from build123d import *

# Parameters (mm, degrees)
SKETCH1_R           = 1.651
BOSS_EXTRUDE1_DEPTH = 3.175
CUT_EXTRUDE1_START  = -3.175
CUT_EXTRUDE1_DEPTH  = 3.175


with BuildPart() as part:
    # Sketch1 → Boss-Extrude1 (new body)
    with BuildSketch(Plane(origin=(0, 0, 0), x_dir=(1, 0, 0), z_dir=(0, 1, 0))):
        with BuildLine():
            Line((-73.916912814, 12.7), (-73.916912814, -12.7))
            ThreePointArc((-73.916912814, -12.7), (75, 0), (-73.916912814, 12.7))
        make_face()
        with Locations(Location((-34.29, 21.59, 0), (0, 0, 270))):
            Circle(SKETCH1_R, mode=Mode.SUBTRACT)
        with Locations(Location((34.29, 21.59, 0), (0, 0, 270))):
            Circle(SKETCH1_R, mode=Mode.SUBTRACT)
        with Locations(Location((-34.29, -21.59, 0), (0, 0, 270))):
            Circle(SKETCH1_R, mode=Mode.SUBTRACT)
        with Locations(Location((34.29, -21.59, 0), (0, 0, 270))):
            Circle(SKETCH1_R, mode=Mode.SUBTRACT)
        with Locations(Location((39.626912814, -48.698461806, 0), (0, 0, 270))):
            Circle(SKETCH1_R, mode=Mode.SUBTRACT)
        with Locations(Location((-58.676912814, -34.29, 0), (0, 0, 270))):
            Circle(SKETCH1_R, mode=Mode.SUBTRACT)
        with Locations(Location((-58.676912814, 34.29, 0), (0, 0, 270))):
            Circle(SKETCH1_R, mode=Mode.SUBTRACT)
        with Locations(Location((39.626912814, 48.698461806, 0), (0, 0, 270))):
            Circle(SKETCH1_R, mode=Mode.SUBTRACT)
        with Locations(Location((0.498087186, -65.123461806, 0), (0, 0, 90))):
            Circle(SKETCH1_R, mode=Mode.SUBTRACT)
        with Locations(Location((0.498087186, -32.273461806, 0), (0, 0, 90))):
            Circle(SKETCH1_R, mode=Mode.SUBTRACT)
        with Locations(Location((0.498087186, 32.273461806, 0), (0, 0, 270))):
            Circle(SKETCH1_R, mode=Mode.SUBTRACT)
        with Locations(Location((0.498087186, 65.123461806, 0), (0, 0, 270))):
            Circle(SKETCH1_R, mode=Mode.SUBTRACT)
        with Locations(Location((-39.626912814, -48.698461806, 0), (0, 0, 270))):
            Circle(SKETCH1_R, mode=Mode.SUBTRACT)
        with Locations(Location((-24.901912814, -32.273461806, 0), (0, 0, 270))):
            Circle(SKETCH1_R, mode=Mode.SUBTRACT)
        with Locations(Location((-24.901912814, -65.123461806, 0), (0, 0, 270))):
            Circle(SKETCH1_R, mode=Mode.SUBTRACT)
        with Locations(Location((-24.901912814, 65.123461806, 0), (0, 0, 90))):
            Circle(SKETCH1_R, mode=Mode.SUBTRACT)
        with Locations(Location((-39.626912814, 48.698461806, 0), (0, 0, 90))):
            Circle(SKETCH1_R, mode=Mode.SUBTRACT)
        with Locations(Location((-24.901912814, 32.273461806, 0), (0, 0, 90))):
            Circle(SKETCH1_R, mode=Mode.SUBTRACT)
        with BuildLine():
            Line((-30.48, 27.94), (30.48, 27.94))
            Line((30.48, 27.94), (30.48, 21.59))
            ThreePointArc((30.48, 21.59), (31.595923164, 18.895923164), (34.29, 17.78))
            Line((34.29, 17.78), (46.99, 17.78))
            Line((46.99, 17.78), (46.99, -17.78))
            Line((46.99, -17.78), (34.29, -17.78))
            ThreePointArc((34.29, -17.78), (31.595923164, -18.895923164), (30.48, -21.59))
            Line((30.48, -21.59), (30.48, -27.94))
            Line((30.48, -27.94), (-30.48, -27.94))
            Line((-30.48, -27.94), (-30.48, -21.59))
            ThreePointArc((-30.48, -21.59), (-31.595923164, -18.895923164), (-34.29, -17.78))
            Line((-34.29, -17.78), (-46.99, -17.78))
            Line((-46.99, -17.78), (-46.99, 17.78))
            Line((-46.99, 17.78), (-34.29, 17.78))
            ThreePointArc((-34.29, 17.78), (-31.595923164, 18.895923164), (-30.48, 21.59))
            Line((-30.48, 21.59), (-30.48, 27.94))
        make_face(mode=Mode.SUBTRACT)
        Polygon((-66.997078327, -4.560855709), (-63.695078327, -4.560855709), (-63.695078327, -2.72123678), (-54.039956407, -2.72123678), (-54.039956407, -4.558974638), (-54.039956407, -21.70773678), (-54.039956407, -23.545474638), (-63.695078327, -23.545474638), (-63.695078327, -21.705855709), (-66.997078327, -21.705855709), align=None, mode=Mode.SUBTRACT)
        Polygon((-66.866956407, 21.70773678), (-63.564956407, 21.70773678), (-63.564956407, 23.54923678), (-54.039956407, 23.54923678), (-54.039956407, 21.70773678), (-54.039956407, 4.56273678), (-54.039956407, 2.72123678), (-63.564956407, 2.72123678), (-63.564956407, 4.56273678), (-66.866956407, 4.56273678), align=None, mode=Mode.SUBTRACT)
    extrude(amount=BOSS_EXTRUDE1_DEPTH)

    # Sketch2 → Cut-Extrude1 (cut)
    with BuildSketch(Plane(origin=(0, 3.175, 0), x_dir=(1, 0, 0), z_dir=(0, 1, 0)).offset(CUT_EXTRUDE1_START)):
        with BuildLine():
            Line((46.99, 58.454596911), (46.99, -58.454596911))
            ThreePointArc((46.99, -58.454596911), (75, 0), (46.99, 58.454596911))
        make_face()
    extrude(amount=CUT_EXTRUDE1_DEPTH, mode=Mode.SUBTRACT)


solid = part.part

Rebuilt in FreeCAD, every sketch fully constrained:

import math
import FreeCAD as App
import Part
import Sketcher

V = App.Vector
Q = App.Units.Quantity


def add_polygon(sketch, points):
    """Adds a closed chain of lines whose ends are joined by coincident constraints."""
    first, n = sketch.GeometryCount, len(points)
    for a, b in zip(points, points[1:] + points[:1]):
        sketch.addGeometry(Part.LineSegment(App.Vector(*a, 0), App.Vector(*b, 0)), False)
    for i in range(n):
        sketch.addConstraint(Sketcher.Constraint("Coincident", first + i, 2, first + (i + 1) % n, 1))

doc = App.newDocument("Part")
body = doc.addObject("PartDesign::Body", "Body")

# Sketch on XZ plane
sketch1 = doc.addObject("Sketcher::SketchObject", "Sketch")
body.addObject(sketch1)
sketch1.AttachmentSupport = (doc.XZ_Plane, [""])
sketch1.MapMode = "FlatFace"
sketch1.addGeometry(Part.LineSegment(V(-73.9, -12.7, 0), V(-73.9, 12.7, 0)), False)  # 0
sketch1.addGeometry(Part.ArcOfCircle(Part.Circle(V(0, 0, 0), V(0, 0, 1), 75), math.radians(-170), math.radians(170)), False)  # 1
sketch1.addGeometry(Part.Circle(V(-58.7, 34.3, 0), V(0, 0, 1), 1.7), False)  # 2
sketch1.addGeometry(Part.Circle(V(-39.6, 48.7, 0), V(0, 0, 1), 1.7), False)  # 3
sketch1.addGeometry(Part.Circle(V(-24.9, 65.1, 0), V(0, 0, 1), 1.7), False)  # 4
add_polygon(sketch1, [(-67, 21.7), (-67, 4.6), (-63.7, 4.6), (-63.7, 2.7), (-54, 2.7), (-54, 23.5), (-63.7, 23.5), (-63.7, 21.7)])  # lines 5-12
sketch1.addGeometry(Part.Circle(V(-24.9, 32.3, 0), V(0, 0, 1), 1.7), False)  # 13
sketch1.addGeometry(Part.Circle(V(-34.3, 21.6, 0), V(0, 0, 1), 1.7), False)  # 14
sketch1.addGeometry(Part.Circle(V(0.5, 65.1, 0), V(0, 0, 1), 1.7), False)  # 15
sketch1.addGeometry(Part.Circle(V(39.6, 48.7, 0), V(0, 0, 1), 1.7), False)  # 16
sketch1.addGeometry(Part.Circle(V(0.5, 32.3, 0), V(0, 0, 1), 1.7), False)  # 17
sketch1.addGeometry(Part.Circle(V(34.3, 21.6, 0), V(0, 0, 1), 1.7), False)  # 18
add_polygon(sketch1, [(-66.9, -4.6), (-66.9, -21.7), (-63.6, -21.7), (-63.6, -23.5), (-54, -23.5), (-54, -2.7), (-63.6, -2.7), (-63.6, -4.6)])  # lines 19-26
sketch1.addGeometry(Part.Circle(V(-34.3, -21.6, 0), V(0, 0, 1), 1.7), False)  # 27
sketch1.addGeometry(Part.Circle(V(-24.9, -32.3, 0), V(0, 0, 1), 1.7), False)  # 28
sketch1.addGeometry(Part.Circle(V(-58.7, -34.3, 0), V(0, 0, 1), 1.7), False)  # 29
sketch1.addGeometry(Part.Circle(V(-39.6, -48.7, 0), V(0, 0, 1), 1.7), False)  # 30
sketch1.addGeometry(Part.Circle(V(-24.9, -65.1, 0), V(0, 0, 1), 1.7), False)  # 31
sketch1.addGeometry(Part.LineSegment(V(-30.5, -21.6, 0), V(-30.5, -27.9, 0)), False)  # 32
sketch1.addGeometry(Part.LineSegment(V(-30.5, -27.9, 0), V(30.5, -27.9, 0)), False)  # 33
sketch1.addGeometry(Part.LineSegment(V(30.5, -27.9, 0), V(30.5, -21.6, 0)), False)  # 34
sketch1.addGeometry(Part.ArcOfCircle(Part.Circle(V(34.3, -21.6, 0), V(0, 0, 1), 3.8), math.radians(90), math.radians(180)), False)  # 35
sketch1.addGeometry(Part.LineSegment(V(34.3, -17.8, 0), V(47, -17.8, 0)), False)  # 36
sketch1.addGeometry(Part.LineSegment(V(47, -17.8, 0), V(47, 17.8, 0)), False)  # 37
sketch1.addGeometry(Part.LineSegment(V(47, 17.8, 0), V(34.3, 17.8, 0)), False)  # 38
sketch1.addGeometry(Part.ArcOfCircle(Part.Circle(V(34.3, 21.6, 0), V(0, 0, 1), 3.8), math.radians(-180), math.radians(-90)), False)  # 39
sketch1.addGeometry(Part.LineSegment(V(30.5, 21.6, 0), V(30.5, 27.9, 0)), False)  # 40
sketch1.addGeometry(Part.LineSegment(V(30.5, 27.9, 0), V(-30.5, 27.9, 0)), False)  # 41
sketch1.addGeometry(Part.LineSegment(V(-30.5, 27.9, 0), V(-30.5, 21.6, 0)), False)  # 42
sketch1.addGeometry(Part.ArcOfCircle(Part.Circle(V(-34.3, 21.6, 0), V(0, 0, 1), 3.8), math.radians(-90), math.radians(0)), False)  # 43
sketch1.addGeometry(Part.LineSegment(V(-34.3, 17.8, 0), V(-47, 17.8, 0)), False)  # 44
sketch1.addGeometry(Part.LineSegment(V(-47, 17.8, 0), V(-47, -17.8, 0)), False)  # 45
sketch1.addGeometry(Part.LineSegment(V(-47, -17.8, 0), V(-34.3, -17.8, 0)), False)  # 46
sketch1.addGeometry(Part.ArcOfCircle(Part.Circle(V(-34.3, -21.6, 0), V(0, 0, 1), 3.8), math.radians(0), math.radians(90)), False)  # 47
sketch1.addGeometry(Part.Circle(V(0.5, -32.3, 0), V(0, 0, 1), 1.7), False)  # 48
sketch1.addGeometry(Part.Circle(V(34.3, -21.6, 0), V(0, 0, 1), 1.7), False)  # 49
sketch1.addGeometry(Part.Circle(V(0.5, -65.1, 0), V(0, 0, 1), 1.7), False)  # 50
sketch1.addGeometry(Part.Circle(V(39.6, -48.7, 0), V(0, 0, 1), 1.7), False)  # 51
sketch1.addConstraint(Sketcher.Constraint("Coincident", 0, 1, 1, 1))
sketch1.addConstraint(Sketcher.Constraint("Coincident", 1, 2, 0, 2))
sketch1.addConstraint(Sketcher.Constraint("Coincident", 32, 2, 33, 1))
sketch1.addConstraint(Sketcher.Constraint("Coincident", 33, 2, 34, 1))
sketch1.addConstraint(Sketcher.Constraint("Tangent", 34, 2, 35, 2))
sketch1.addConstraint(Sketcher.Constraint("Tangent", 35, 1, 36, 1))
sketch1.addConstraint(Sketcher.Constraint("Coincident", 36, 2, 37, 1))
sketch1.addConstraint(Sketcher.Constraint("Coincident", 37, 2, 38, 1))
sketch1.addConstraint(Sketcher.Constraint("Tangent", 38, 2, 39, 2))
sketch1.addConstraint(Sketcher.Constraint("Tangent", 39, 1, 40, 1))
sketch1.addConstraint(Sketcher.Constraint("Coincident", 40, 2, 41, 1))
sketch1.addConstraint(Sketcher.Constraint("Coincident", 41, 2, 42, 1))
sketch1.addConstraint(Sketcher.Constraint("Tangent", 42, 2, 43, 2))
sketch1.addConstraint(Sketcher.Constraint("Tangent", 43, 1, 44, 1))
sketch1.addConstraint(Sketcher.Constraint("Coincident", 44, 2, 45, 1))
sketch1.addConstraint(Sketcher.Constraint("Coincident", 45, 2, 46, 1))
sketch1.addConstraint(Sketcher.Constraint("Tangent", 46, 2, 47, 2))
sketch1.addConstraint(Sketcher.Constraint("Tangent", 47, 1, 32, 1))
sketch1.addConstraint(Sketcher.Constraint("Vertical", 0))
sketch1.addConstraint(Sketcher.Constraint("Vertical", 5))
sketch1.addConstraint(Sketcher.Constraint("Horizontal", 6))
sketch1.addConstraint(Sketcher.Constraint("Vertical", 7))
sketch1.addConstraint(Sketcher.Constraint("Horizontal", 8))
sketch1.addConstraint(Sketcher.Constraint("Vertical", 9))
sketch1.addConstraint(Sketcher.Constraint("Horizontal", 10))
sketch1.addConstraint(Sketcher.Constraint("Vertical", 11))
sketch1.addConstraint(Sketcher.Constraint("Horizontal", 12))
sketch1.addConstraint(Sketcher.Constraint("Vertical", 19))
sketch1.addConstraint(Sketcher.Constraint("Horizontal", 20))
sketch1.addConstraint(Sketcher.Constraint("Vertical", 21))
sketch1.addConstraint(Sketcher.Constraint("Horizontal", 22))
sketch1.addConstraint(Sketcher.Constraint("Vertical", 23))
sketch1.addConstraint(Sketcher.Constraint("Horizontal", 24))
sketch1.addConstraint(Sketcher.Constraint("Vertical", 25))
sketch1.addConstraint(Sketcher.Constraint("Horizontal", 26))
sketch1.addConstraint(Sketcher.Constraint("Vertical", 32))
sketch1.addConstraint(Sketcher.Constraint("Horizontal", 33))
sketch1.addConstraint(Sketcher.Constraint("Vertical", 34))
sketch1.addConstraint(Sketcher.Constraint("Horizontal", 36))
sketch1.addConstraint(Sketcher.Constraint("Vertical", 37))
sketch1.addConstraint(Sketcher.Constraint("Horizontal", 38))
sketch1.addConstraint(Sketcher.Constraint("Vertical", 40))
sketch1.addConstraint(Sketcher.Constraint("Horizontal", 41))
sketch1.addConstraint(Sketcher.Constraint("Vertical", 42))
sketch1.addConstraint(Sketcher.Constraint("Horizontal", 44))
sketch1.addConstraint(Sketcher.Constraint("Vertical", 45))
sketch1.addConstraint(Sketcher.Constraint("Horizontal", 46))
sketch1.addConstraint(Sketcher.Constraint("Coincident", 1, 3, -1, 1))
sketch1.addConstraint(Sketcher.Constraint("Coincident", 39, 3, 18, 3))
sketch1.addConstraint(Sketcher.Constraint("Coincident", 43, 3, 14, 3))
sketch1.addConstraint(Sketcher.Constraint("Coincident", 47, 3, 27, 3))
sketch1.addConstraint(Sketcher.Constraint("Coincident", 49, 3, 35, 3))
sketch1.addConstraint(Sketcher.Constraint("Equal", 2, 3))
sketch1.addConstraint(Sketcher.Constraint("Equal", 3, 4))
sketch1.addConstraint(Sketcher.Constraint("Equal", 4, 13))
sketch1.addConstraint(Sketcher.Constraint("Equal", 13, 14))
sketch1.addConstraint(Sketcher.Constraint("Equal", 14, 15))
sketch1.addConstraint(Sketcher.Constraint("Equal", 15, 16))
sketch1.addConstraint(Sketcher.Constraint("Equal", 16, 17))
sketch1.addConstraint(Sketcher.Constraint("Equal", 17, 18))
sketch1.addConstraint(Sketcher.Constraint("Equal", 18, 27))
sketch1.addConstraint(Sketcher.Constraint("Equal", 27, 28))
sketch1.addConstraint(Sketcher.Constraint("Equal", 28, 29))
sketch1.addConstraint(Sketcher.Constraint("Equal", 29, 30))
sketch1.addConstraint(Sketcher.Constraint("Equal", 30, 31))
sketch1.addConstraint(Sketcher.Constraint("Equal", 35, 39))
sketch1.addConstraint(Sketcher.Constraint("Equal", 39, 43))
sketch1.addConstraint(Sketcher.Constraint("Equal", 43, 47))
sketch1.addConstraint(Sketcher.Constraint("Equal", 31, 48))
sketch1.addConstraint(Sketcher.Constraint("Equal", 48, 49))
sketch1.addConstraint(Sketcher.Constraint("Equal", 49, 50))
sketch1.addConstraint(Sketcher.Constraint("Equal", 50, 51))
sketch1.addConstraint(Sketcher.Constraint("Symmetric", 18, 3, 27, 3, -1, 1))
sketch1.addConstraint(Sketcher.Constraint("Symmetric", 16, 3, 30, 3, -1, 1))
sketch1.addConstraint(Sketcher.Constraint("Symmetric", 14, 3, 35, 3, -1, 1))
sketch1.addConstraint(Sketcher.Constraint("Symmetric", 3, 3, 51, 3, -1, 1))
sketch1.addConstraint(Sketcher.Constraint("Symmetric", 3, 3, 16, 3, -2))
sketch1.addConstraint(Sketcher.Constraint("Symmetric", 14, 3, 18, 3, -2))
sketch1.addConstraint(Sketcher.Constraint("Symmetric", 13, 3, 28, 3, -1))
sketch1.addConstraint(Sketcher.Constraint("Symmetric", 2, 3, 29, 3, -1))
sketch1.addConstraint(Sketcher.Constraint("Symmetric", 4, 3, 31, 3, -1))
sketch1.addConstraint(Sketcher.Constraint("Symmetric", 17, 3, 48, 3, -1))
sketch1.addConstraint(Sketcher.Constraint("Symmetric", 15, 3, 50, 3, -1))
sketch1.addConstraint(Sketcher.Constraint("Symmetric", 8, 2, 23, 2, -1))
sketch1.addConstraint(Sketcher.Constraint("Horizontal", 4, 3, 15, 3))
sketch1.addConstraint(Sketcher.Constraint("Horizontal", 13, 3, 17, 3))
sketch1.addConstraint(Sketcher.Constraint("Vertical", 4, 3, 13, 3))
sketch1.addConstraint(Sketcher.Constraint("Vertical", 15, 3, 17, 3))
sketch1.addConstraint(Sketcher.Constraint("Vertical", 7, 2, 10, 2))
sketch1.addConstraint(Sketcher.Constraint("Vertical", 21, 2, 24, 2))
sketch1.addConstraint(Sketcher.Constraint("Equal", 12, 20))
sketch1.addConstraint(Sketcher.Constraint("Equal", 38, 44))
sketch1.addConstraint(Sketcher.Constraint("Equal", 7, 11))
sketch1.addConstraint(Sketcher.Constraint("Equal", 5, 19))
sketch1.addConstraint(Sketcher.Constraint("Equal", 21, 25))
sketch1.addConstraint(Sketcher.Constraint("Equal", 34, 40))
sketch1.addConstraint(Sketcher.Constraint("Diameter", 2, Q("0.13 in")))
sketch1.addConstraint(Sketcher.Constraint("DistanceY", 0, 1, 0, 2, Q("1 in")))
sketch1.addConstraint(Sketcher.Constraint("Radius", 35, Q("0.15 in")))
sketch1.addConstraint(Sketcher.Constraint("DistanceX", 33, 1, 33, 2, Q("2.4 in")))
sketch1.addConstraint(Sketcher.Constraint("DistanceX", 36, 1, 36, 2, Q("0.5 in")))
sketch1.addConstraint(Sketcher.Constraint("DistanceY", 37, 1, 37, 2, Q("1.4 in")))
sketch1.addConstraint(Sketcher.Constraint("DistanceX", 4, 3, 15, 3, Q("1 in")))
sketch1.addConstraint(Sketcher.Constraint("DistanceX", 6, 1, 6, 2, Q("0.13 in")))
sketch1.addConstraint(Sketcher.Constraint("DistanceY", 23, 1, 23, 2, Q("0.82 in")))
sketch1.addConstraint(Sketcher.Constraint("DistanceY", 32, 2, 32, 1, Q("0.25 in")))
sketch1.addConstraint(Sketcher.Constraint("DistanceY", 14, 3, 2, 3, Q("0.5 in")))
sketch1.addConstraint(Sketcher.Constraint("DistanceX", 0, 1, 29, 3, Q("0.6 in")))
sketch1.addConstraint(Sketcher.Constraint("DistanceX", 22, 1, 22, 2, Q("0.375 in")))
sketch1.addConstraint(Sketcher.Constraint("DistanceY", 5, 2, 5, 1, Q("0.675 in")))
sketch1.addConstraint(Sketcher.Constraint("Radius", 1, Q("75 mm")))
sketch1.addConstraint(Sketcher.Constraint("DistanceX", 2, 3, 3, 3, Q("0.75 in")))
sketch1.addConstraint(Sketcher.Constraint("DistanceX", 8, 1, 8, 2, Q("9.655122 mm")))
sketch1.addConstraint(Sketcher.Constraint("DistanceY", 7, 2, 7, 1, Q("1.839619 mm")))
sketch1.addConstraint(Sketcher.Constraint("DistanceX", 3, 3, 4, 3, Q("14.725 mm")))
sketch1.addConstraint(Sketcher.Constraint("DistanceY", 3, 3, 4, 3, Q("16.425 mm")))
sketch1.addConstraint(Sketcher.Constraint("DistanceY", 13, 3, 3, 3, Q("16.425 mm")))
sketch1.addConstraint(Sketcher.Constraint("DistanceY", -1, 1, 3, 3, Q("48.698462 mm")))
sketch1.addConstraint(Sketcher.Constraint("DistanceX", 5, 2, -1, 1, Q("66.997078 mm")))
sketch1.addConstraint(Sketcher.Constraint("DistanceY", -1, 1, 5, 2, Q("4.560856 mm")))
pad1 = doc.addObject("PartDesign::Pad", "Pad")
body.addObject(pad1)
pad1.Profile = sketch1
pad1.Length = Q("0.125 in")
pad1.Reversed = True

# Sketch on XZ plane
sketch2 = doc.addObject("Sketcher::SketchObject", "Sketch001")
body.addObject(sketch2)
sketch2.AttachmentSupport = (doc.XZ_Plane, [""])
sketch2.MapMode = "FlatFace"
sketch2.addGeometry(Part.LineSegment(V(47, -58, 0), V(47, 58, 0)), False)
sketch2.addGeometry(Part.ArcOfCircle(Part.Circle(V(0, 0, 0), V(0, 0, 1), 75), math.radians(-51), math.radians(51)), False)
sketch2.addConstraint(Sketcher.Constraint("Coincident", 0, 1, 1, 1))
sketch2.addConstraint(Sketcher.Constraint("Coincident", 1, 2, 0, 2))
sketch2.addConstraint(Sketcher.Constraint("Vertical", 0))
sketch2.addConstraint(Sketcher.Constraint("Coincident", 1, 3, -1, 1))
sketch2.addConstraint(Sketcher.Constraint("DistanceX", -1, 1, 0, 1, Q("1.85 in")))
sketch2.addConstraint(Sketcher.Constraint("Radius", 1, Q("75 mm")))
pocket1 = doc.addObject("PartDesign::Pocket", "Pocket")
body.addObject(pocket1)
pocket1.Profile = sketch2
pocket1.Length = Q("0.125 in")

doc.recompute()
